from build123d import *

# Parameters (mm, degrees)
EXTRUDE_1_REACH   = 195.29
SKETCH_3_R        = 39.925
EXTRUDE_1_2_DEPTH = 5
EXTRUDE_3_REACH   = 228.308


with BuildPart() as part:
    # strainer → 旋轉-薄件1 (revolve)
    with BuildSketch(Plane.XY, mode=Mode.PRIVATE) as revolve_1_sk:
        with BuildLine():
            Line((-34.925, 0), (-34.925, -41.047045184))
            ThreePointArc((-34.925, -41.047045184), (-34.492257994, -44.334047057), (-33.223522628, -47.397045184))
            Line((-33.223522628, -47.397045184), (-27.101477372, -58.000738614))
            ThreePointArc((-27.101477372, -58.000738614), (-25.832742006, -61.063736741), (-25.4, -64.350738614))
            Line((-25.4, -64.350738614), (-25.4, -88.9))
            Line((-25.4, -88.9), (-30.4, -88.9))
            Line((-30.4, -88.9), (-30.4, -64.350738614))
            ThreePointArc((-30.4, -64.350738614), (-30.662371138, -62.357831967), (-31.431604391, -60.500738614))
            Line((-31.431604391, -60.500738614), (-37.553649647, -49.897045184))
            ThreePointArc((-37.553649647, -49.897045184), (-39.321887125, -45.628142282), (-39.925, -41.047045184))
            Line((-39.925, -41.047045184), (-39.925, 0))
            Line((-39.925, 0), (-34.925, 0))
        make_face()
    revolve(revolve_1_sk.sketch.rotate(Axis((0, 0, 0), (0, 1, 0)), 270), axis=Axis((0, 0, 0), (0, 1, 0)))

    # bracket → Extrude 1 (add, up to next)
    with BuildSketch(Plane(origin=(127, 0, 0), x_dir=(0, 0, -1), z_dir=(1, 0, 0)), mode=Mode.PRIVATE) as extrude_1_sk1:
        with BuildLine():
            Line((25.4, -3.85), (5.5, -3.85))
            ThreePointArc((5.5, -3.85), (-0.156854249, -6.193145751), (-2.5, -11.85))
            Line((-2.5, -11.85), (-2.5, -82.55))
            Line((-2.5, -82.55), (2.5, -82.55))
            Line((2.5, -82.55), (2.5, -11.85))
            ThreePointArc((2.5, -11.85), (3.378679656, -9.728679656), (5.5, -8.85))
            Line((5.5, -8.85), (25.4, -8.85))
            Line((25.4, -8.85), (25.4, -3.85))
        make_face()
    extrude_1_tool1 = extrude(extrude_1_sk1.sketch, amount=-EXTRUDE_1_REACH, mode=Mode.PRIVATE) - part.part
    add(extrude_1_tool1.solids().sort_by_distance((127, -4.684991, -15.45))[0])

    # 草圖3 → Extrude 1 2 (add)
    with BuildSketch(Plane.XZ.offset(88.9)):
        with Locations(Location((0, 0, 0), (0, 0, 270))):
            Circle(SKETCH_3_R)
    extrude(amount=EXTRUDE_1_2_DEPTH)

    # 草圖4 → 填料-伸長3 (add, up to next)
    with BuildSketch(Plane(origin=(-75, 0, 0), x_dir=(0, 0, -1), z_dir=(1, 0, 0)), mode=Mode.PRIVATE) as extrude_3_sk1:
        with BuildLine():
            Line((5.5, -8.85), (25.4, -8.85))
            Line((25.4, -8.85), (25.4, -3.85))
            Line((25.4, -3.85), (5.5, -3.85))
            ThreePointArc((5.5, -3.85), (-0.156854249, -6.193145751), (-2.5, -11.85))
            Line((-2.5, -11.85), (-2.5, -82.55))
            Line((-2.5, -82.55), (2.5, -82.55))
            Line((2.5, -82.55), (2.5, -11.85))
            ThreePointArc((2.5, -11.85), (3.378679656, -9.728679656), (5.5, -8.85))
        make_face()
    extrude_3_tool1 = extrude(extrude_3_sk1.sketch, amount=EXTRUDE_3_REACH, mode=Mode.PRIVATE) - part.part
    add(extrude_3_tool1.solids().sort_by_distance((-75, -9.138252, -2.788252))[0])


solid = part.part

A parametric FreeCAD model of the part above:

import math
import FreeCAD as App
import Part
import Sketcher

V = App.Vector
Q = App.Units.Quantity

doc = App.newDocument("Part")
params = doc.addObject("Spreadsheet::Sheet", "Params")
for row, (alias, value) in enumerate([
    ("sketch1_radius", "17.7 mm"),
    ("sketch1_radius2", "7.7 mm"),
    ("revolution_angle", "360 deg"),
    ("sketch2_radius", "8 mm"),
    ("sketch2_radius2", "3 mm"),
    ("sketch2_width", "70.7 mm"),
    ("sketch2_height", "19.9 mm"),
    ("sketch3_diameter", "79.85 mm"),
    ("pad2_length", "5 mm"),
    ("sketch4_radius", "8 mm"),
    ("sketch4_radius2", "3 mm"),
    ("sketch4_width", "70.7 mm"),
    ("sketch4_height", "19.9 mm"),
], start=1):
    params.set(f"A{row}", alias)
    params.set(f"B{row}", "=" + value)
    params.setAlias(f"B{row}", alias)

body = doc.addObject("PartDesign::Body", "Body")

# Sketch on XY plane
sketch1 = body.newObject("Sketcher::SketchObject", "Sketch")
sketch1.AttachmentSupport = (doc.getObject("XY_Plane"), [""])
sketch1.MapMode = "FlatFace"
sketch1.addGeometry([
    Part.LineSegment(V(-34.9, -41, 0), V(-34.9, 0, 0)),  # 0
    Part.LineSegment(V(-34.9, 0, 0), V(-39.9, 0, 0)),  # 1
    Part.LineSegment(V(-39.9, 0, 0), V(-39.9, -41, 0)),  # 2
    Part.ArcOfCircle(Part.Circle(V(-22.2, -41, 0), V(0, 0, 1), 17.7), math.radians(-180), math.radians(-150)),  # 3
    Part.LineSegment(V(-37.6, -49.9, 0), V(-31.4, -60.5, 0)),  # 4
    Part.ArcOfCircle(Part.Circle(V(-38.1, -64.4, 0), V(0, 0, 1), 7.7), math.radians(0), math.radians(30)),  # 5
    Part.LineSegment(V(-30.4, -64.4, 0), V(-30.4, -88.9, 0)),  # 6
    Part.LineSegment(V(-30.4, -88.9, 0), V(-25.4, -88.9, 0)),  # 7
    Part.LineSegment(V(-25.4, -88.9, 0), V(-25.4, -64.4, 0)),  # 8
    Part.ArcOfCircle(Part.Circle(V(-38.1, -64.4, 0), V(0, 0, 1), 12.7), math.radians(0), math.radians(30)),  # 9
    Part.LineSegment(V(-27.1, -58, 0), V(-33.2, -47.4, 0)),  # 10
    Part.ArcOfCircle(Part.Circle(V(-22.2, -41, 0), V(0, 0, 1), 12.7), math.radians(180), math.radians(210)),  # 11
], False)
sketch1.addConstraint([
    Sketcher.Constraint("Coincident", 0, 2, 1, 1),
    Sketcher.Constraint("Coincident", 1, 2, 2, 1),
    Sketcher.Constraint("Tangent", 2, 2, 3, 1),
    Sketcher.Constraint("Tangent", 3, 2, 4, 1),
    Sketcher.Constraint("Tangent", 4, 2, 5, 2),
    Sketcher.Constraint("Tangent", 5, 1, 6, 1),
    Sketcher.Constraint("Coincident", 6, 2, 7, 1),
    Sketcher.Constraint("Coincident", 7, 2, 8, 1),
    Sketcher.Constraint("Tangent", 8, 2, 9, 1),
    Sketcher.Constraint("Tangent", 9, 2, 10, 1),
    Sketcher.Constraint("Tangent", 10, 2, 11, 2),
    Sketcher.Constraint("Tangent", 11, 1, 0, 1),
    Sketcher.Constraint("Vertical", 0),
    Sketcher.Constraint("Horizontal", 1),
    Sketcher.Constraint("Vertical", 2),
    Sketcher.Constraint("Vertical", 6),
    Sketcher.Constraint("Horizontal", 7),
    Sketcher.Constraint("Vertical", 8),
    Sketcher.Constraint("Coincident", 9, 3, 5, 3),
    Sketcher.Constraint("Coincident", 11, 3, 3, 3),
    Sketcher.Constraint("Equal", 9, 11),
    Sketcher.Constraint("PointOnObject", 0, 2, -1),
    Sketcher.Constraint("Parallel", 4, 10),
    Sketcher.Constraint("Radius", 3, Q("17.7 mm")),
    Sketcher.Constraint("Radius", 5, Q("7.7 mm")),
    Sketcher.Constraint("Angle", 4, Q("-60 deg")),
    Sketcher.Constraint("DistanceX", 5, 3, -1, 1, Q("38.1 mm")),
    Sketcher.Constraint("DistanceY", 6, 2, -1, 1, Q("88.9 mm")),
    Sketcher.Constraint("DistanceX", 3, 3, -1, 1, Q("22.225 mm")),
    Sketcher.Constraint("DistanceY", 6, 2, 6, 1, Q("24.549261 mm")),
])
sketch1.setExpression("Constraints[23]", "Params.sketch1_radius")
sketch1.setExpression("Constraints[24]", "Params.sketch1_radius2")
revolution = body.newObject("PartDesign::Revolution", "Revolution")
revolution.Profile = sketch1
revolution.ReferenceAxis = (sketch1, ["V_Axis"])
revolution.setExpression("Angle", "Params.revolution_angle")

# Sketch on YZ plane
sketch2 = body.newObject("Sketcher::SketchObject", "Sketch001")
sketch2.AttachmentSupport = (doc.getObject("YZ_Plane"), [""])
sketch2.MapMode = "FlatFace"
sketch2.AttachmentOffset = App.Placement(V(0, 0, 127), App.Rotation())
sketch2.addGeometry([
    Part.LineSegment(V(-3.9, -25.4, 0), V(-3.9, -5.5, 0)),  # 0
    Part.ArcOfCircle(Part.Circle(V(-11.9, -5.5, 0), V(0, 0, 1), 8), math.radians(0), math.radians(90)),  # 1
    Part.LineSegment(V(-11.8, 2.5, 0), V(-82.5, 2.5, 0)),  # 2
    Part.LineSegment(V(-82.5, 2.5, 0), V(-82.5, -2.5, 0)),  # 3
    Part.LineSegment(V(-82.5, -2.5, 0), V(-11.8, -2.5, 0)),  # 4
    Part.ArcOfCircle(Part.Circle(V(-11.8, -5.5, 0), V(0, 0, 1), 3), math.radians(0), math.radians(90)),  # 5
    Part.LineSegment(V(-8.8, -5.5, 0), V(-8.8, -25.4, 0)),  # 6
    Part.LineSegment(V(-8.8, -25.4, 0), V(-3.9, -25.4, 0)),  # 7
], False)
sketch2.addConstraint([
    Sketcher.Constraint("Tangent", 0, 2, 1, 1),
    Sketcher.Constraint("Tangent", 1, 2, 2, 1),
    Sketcher.Constraint("Coincident", 2, 2, 3, 1),
    Sketcher.Constraint("Coincident", 3, 2, 4, 1),
    Sketcher.Constraint("Tangent", 4, 2, 5, 2),
    Sketcher.Constraint("Tangent", 5, 1, 6, 1),
    Sketcher.Constraint("Coincident", 6, 2, 7, 1),
    Sketcher.Constraint("Coincident", 7, 2, 0, 1),
    Sketcher.Constraint("Vertical", 0),
    Sketcher.Constraint("Horizontal", 2),
    Sketcher.Constraint("Vertical", 3),
    Sketcher.Constraint("Horizontal", 4),
    Sketcher.Constraint("Vertical", 6),
    Sketcher.Constraint("Horizontal", 7),
    Sketcher.Constraint("Coincident", 5, 3, 1, 3),
    Sketcher.Constraint("Radius", 1, Q("8 mm")),
    Sketcher.Constraint("Radius", 5, Q("3 mm")),
    Sketcher.Constraint("DistanceX", 2, 2, 2, 1, Q("70.7 mm")),
    Sketcher.Constraint("DistanceY", 0, 1, 0, 2, Q("19.9 mm")),
    Sketcher.Constraint("DistanceY", 1, 3, -1, 1, Q("5.5 mm")),
    Sketcher.Constraint("DistanceX", 1, 3, -1, 1, Q("11.85 mm")),
])
sketch2.setExpression("Constraints[15]", "Params.sketch2_radius")
sketch2.setExpression("Constraints[16]", "Params.sketch2_radius2")
sketch2.setExpression("Constraints[17]", "Params.sketch2_width")
sketch2.setExpression("Constraints[18]", "Params.sketch2_height")
pad1 = body.newObject("PartDesign::Pad", "Pad")
pad1.Profile = sketch2
pad1.Type = "UpToFirst"
pad1.Reversed = True

# Sketch on XZ plane
sketch3 = body.newObject("Sketcher::SketchObject", "Sketch002")
sketch3.AttachmentSupport = (doc.getObject("XZ_Plane"), [""])
sketch3.MapMode = "FlatFace"
sketch3.AttachmentOffset = App.Placement(V(0, 0, 88.9), App.Rotation())
sketch3.addGeometry(Part.Circle(V(0, 0, 0), V(0, 0, 1), 40), False)
sketch3.addConstraint([
    Sketcher.Constraint("Coincident", 0, 3, -1, 1),
    Sketcher.Constraint("Diameter", 0, Q("79.85 mm")),
])
sketch3.setExpression("Constraints[1]", "Params.sketch3_diameter")
pad2 = body.newObject("PartDesign::Pad", "Pad001")
pad2.Profile = sketch3
pad2.setExpression("Length", "Params.pad2_length")

# Sketch on YZ plane
sketch4 = body.newObject("Sketcher::SketchObject", "Sketch003")
sketch4.AttachmentSupport = (doc.getObject("YZ_Plane"), [""])
sketch4.MapMode = "FlatFace"
sketch4.AttachmentOffset = App.Placement(V(0, 0, -75), App.Rotation())
sketch4.addGeometry([
    Part.LineSegment(V(-8.8, -5.5, 0), V(-8.8, -25.4, 0)),  # 0
    Part.LineSegment(V(-8.8, -25.4, 0), V(-3.9, -25.4, 0)),  # 1
    Part.LineSegment(V(-3.9, -25.4, 0), V(-3.9, -5.5, 0)),  # 2
    Part.ArcOfCircle(Part.Circle(V(-11.9, -5.5, 0), V(0, 0, 1), 8), math.radians(0), math.radians(90)),  # 3
    Part.LineSegment(V(-11.8, 2.5, 0), V(-82.5, 2.5, 0)),  # 4
    Part.LineSegment(V(-82.5, 2.5, 0), V(-82.5, -2.5, 0)),  # 5
    Part.LineSegment(V(-82.5, -2.5, 0), V(-11.8, -2.5, 0)),  # 6
    Part.ArcOfCircle(Part.Circle(V(-11.8, -5.5, 0), V(0, 0, 1), 3), math.radians(0), math.radians(90)),  # 7
], False)
sketch4.addConstraint([
    Sketcher.Constraint("Coincident", 0, 2, 1, 1),
    Sketcher.Constraint("Coincident", 1, 2, 2, 1),
    Sketcher.Constraint("Tangent", 2, 2, 3, 1),
    Sketcher.Constraint("Tangent", 3, 2, 4, 1),
    Sketcher.Constraint("Coincident", 4, 2, 5, 1),
    Sketcher.Constraint("Coincident", 5, 2, 6, 1),
    Sketcher.Constraint("Tangent", 6, 2, 7, 2),
    Sketcher.Constraint("Tangent", 7, 1, 0, 1),
    Sketcher.Constraint("Vertical", 0),
    Sketcher.Constraint("Horizontal", 1),
    Sketcher.Constraint("Vertical", 2),
    Sketcher.Constraint("Horizontal", 4),
    Sketcher.Constraint("Vertical", 5),
    Sketcher.Constraint("Horizontal", 6),
    Sketcher.Constraint("Coincident", 7, 3, 3, 3),
    Sketcher.Constraint("Radius", 3, Q("8 mm")),
    Sketcher.Constraint("Radius", 7, Q("3 mm")),
    Sketcher.Constraint("DistanceX", 4, 2, 4, 1, Q("70.7 mm")),
    Sketcher.Constraint("DistanceY", 0, 2, 0, 1, Q("19.9 mm")),
    Sketcher.Constraint("DistanceY", 3, 3, -1, 1, Q("5.5 mm")),
    Sketcher.Constraint("DistanceX", 3, 3, -1, 1, Q("11.85 mm")),
])
sketch4.setExpression("Constraints[15]", "Params.sketch4_radius")
sketch4.setExpression("Constraints[16]", "Params.sketch4_radius2")
sketch4.setExpression("Constraints[17]", "Params.sketch4_width")
sketch4.setExpression("Constraints[18]", "Params.sketch4_height")
pad3 = body.newObject("PartDesign::Pad", "Pad002")
pad3.Profile = sketch4
pad3.Type = "UpToFirst"

doc.recompute()
